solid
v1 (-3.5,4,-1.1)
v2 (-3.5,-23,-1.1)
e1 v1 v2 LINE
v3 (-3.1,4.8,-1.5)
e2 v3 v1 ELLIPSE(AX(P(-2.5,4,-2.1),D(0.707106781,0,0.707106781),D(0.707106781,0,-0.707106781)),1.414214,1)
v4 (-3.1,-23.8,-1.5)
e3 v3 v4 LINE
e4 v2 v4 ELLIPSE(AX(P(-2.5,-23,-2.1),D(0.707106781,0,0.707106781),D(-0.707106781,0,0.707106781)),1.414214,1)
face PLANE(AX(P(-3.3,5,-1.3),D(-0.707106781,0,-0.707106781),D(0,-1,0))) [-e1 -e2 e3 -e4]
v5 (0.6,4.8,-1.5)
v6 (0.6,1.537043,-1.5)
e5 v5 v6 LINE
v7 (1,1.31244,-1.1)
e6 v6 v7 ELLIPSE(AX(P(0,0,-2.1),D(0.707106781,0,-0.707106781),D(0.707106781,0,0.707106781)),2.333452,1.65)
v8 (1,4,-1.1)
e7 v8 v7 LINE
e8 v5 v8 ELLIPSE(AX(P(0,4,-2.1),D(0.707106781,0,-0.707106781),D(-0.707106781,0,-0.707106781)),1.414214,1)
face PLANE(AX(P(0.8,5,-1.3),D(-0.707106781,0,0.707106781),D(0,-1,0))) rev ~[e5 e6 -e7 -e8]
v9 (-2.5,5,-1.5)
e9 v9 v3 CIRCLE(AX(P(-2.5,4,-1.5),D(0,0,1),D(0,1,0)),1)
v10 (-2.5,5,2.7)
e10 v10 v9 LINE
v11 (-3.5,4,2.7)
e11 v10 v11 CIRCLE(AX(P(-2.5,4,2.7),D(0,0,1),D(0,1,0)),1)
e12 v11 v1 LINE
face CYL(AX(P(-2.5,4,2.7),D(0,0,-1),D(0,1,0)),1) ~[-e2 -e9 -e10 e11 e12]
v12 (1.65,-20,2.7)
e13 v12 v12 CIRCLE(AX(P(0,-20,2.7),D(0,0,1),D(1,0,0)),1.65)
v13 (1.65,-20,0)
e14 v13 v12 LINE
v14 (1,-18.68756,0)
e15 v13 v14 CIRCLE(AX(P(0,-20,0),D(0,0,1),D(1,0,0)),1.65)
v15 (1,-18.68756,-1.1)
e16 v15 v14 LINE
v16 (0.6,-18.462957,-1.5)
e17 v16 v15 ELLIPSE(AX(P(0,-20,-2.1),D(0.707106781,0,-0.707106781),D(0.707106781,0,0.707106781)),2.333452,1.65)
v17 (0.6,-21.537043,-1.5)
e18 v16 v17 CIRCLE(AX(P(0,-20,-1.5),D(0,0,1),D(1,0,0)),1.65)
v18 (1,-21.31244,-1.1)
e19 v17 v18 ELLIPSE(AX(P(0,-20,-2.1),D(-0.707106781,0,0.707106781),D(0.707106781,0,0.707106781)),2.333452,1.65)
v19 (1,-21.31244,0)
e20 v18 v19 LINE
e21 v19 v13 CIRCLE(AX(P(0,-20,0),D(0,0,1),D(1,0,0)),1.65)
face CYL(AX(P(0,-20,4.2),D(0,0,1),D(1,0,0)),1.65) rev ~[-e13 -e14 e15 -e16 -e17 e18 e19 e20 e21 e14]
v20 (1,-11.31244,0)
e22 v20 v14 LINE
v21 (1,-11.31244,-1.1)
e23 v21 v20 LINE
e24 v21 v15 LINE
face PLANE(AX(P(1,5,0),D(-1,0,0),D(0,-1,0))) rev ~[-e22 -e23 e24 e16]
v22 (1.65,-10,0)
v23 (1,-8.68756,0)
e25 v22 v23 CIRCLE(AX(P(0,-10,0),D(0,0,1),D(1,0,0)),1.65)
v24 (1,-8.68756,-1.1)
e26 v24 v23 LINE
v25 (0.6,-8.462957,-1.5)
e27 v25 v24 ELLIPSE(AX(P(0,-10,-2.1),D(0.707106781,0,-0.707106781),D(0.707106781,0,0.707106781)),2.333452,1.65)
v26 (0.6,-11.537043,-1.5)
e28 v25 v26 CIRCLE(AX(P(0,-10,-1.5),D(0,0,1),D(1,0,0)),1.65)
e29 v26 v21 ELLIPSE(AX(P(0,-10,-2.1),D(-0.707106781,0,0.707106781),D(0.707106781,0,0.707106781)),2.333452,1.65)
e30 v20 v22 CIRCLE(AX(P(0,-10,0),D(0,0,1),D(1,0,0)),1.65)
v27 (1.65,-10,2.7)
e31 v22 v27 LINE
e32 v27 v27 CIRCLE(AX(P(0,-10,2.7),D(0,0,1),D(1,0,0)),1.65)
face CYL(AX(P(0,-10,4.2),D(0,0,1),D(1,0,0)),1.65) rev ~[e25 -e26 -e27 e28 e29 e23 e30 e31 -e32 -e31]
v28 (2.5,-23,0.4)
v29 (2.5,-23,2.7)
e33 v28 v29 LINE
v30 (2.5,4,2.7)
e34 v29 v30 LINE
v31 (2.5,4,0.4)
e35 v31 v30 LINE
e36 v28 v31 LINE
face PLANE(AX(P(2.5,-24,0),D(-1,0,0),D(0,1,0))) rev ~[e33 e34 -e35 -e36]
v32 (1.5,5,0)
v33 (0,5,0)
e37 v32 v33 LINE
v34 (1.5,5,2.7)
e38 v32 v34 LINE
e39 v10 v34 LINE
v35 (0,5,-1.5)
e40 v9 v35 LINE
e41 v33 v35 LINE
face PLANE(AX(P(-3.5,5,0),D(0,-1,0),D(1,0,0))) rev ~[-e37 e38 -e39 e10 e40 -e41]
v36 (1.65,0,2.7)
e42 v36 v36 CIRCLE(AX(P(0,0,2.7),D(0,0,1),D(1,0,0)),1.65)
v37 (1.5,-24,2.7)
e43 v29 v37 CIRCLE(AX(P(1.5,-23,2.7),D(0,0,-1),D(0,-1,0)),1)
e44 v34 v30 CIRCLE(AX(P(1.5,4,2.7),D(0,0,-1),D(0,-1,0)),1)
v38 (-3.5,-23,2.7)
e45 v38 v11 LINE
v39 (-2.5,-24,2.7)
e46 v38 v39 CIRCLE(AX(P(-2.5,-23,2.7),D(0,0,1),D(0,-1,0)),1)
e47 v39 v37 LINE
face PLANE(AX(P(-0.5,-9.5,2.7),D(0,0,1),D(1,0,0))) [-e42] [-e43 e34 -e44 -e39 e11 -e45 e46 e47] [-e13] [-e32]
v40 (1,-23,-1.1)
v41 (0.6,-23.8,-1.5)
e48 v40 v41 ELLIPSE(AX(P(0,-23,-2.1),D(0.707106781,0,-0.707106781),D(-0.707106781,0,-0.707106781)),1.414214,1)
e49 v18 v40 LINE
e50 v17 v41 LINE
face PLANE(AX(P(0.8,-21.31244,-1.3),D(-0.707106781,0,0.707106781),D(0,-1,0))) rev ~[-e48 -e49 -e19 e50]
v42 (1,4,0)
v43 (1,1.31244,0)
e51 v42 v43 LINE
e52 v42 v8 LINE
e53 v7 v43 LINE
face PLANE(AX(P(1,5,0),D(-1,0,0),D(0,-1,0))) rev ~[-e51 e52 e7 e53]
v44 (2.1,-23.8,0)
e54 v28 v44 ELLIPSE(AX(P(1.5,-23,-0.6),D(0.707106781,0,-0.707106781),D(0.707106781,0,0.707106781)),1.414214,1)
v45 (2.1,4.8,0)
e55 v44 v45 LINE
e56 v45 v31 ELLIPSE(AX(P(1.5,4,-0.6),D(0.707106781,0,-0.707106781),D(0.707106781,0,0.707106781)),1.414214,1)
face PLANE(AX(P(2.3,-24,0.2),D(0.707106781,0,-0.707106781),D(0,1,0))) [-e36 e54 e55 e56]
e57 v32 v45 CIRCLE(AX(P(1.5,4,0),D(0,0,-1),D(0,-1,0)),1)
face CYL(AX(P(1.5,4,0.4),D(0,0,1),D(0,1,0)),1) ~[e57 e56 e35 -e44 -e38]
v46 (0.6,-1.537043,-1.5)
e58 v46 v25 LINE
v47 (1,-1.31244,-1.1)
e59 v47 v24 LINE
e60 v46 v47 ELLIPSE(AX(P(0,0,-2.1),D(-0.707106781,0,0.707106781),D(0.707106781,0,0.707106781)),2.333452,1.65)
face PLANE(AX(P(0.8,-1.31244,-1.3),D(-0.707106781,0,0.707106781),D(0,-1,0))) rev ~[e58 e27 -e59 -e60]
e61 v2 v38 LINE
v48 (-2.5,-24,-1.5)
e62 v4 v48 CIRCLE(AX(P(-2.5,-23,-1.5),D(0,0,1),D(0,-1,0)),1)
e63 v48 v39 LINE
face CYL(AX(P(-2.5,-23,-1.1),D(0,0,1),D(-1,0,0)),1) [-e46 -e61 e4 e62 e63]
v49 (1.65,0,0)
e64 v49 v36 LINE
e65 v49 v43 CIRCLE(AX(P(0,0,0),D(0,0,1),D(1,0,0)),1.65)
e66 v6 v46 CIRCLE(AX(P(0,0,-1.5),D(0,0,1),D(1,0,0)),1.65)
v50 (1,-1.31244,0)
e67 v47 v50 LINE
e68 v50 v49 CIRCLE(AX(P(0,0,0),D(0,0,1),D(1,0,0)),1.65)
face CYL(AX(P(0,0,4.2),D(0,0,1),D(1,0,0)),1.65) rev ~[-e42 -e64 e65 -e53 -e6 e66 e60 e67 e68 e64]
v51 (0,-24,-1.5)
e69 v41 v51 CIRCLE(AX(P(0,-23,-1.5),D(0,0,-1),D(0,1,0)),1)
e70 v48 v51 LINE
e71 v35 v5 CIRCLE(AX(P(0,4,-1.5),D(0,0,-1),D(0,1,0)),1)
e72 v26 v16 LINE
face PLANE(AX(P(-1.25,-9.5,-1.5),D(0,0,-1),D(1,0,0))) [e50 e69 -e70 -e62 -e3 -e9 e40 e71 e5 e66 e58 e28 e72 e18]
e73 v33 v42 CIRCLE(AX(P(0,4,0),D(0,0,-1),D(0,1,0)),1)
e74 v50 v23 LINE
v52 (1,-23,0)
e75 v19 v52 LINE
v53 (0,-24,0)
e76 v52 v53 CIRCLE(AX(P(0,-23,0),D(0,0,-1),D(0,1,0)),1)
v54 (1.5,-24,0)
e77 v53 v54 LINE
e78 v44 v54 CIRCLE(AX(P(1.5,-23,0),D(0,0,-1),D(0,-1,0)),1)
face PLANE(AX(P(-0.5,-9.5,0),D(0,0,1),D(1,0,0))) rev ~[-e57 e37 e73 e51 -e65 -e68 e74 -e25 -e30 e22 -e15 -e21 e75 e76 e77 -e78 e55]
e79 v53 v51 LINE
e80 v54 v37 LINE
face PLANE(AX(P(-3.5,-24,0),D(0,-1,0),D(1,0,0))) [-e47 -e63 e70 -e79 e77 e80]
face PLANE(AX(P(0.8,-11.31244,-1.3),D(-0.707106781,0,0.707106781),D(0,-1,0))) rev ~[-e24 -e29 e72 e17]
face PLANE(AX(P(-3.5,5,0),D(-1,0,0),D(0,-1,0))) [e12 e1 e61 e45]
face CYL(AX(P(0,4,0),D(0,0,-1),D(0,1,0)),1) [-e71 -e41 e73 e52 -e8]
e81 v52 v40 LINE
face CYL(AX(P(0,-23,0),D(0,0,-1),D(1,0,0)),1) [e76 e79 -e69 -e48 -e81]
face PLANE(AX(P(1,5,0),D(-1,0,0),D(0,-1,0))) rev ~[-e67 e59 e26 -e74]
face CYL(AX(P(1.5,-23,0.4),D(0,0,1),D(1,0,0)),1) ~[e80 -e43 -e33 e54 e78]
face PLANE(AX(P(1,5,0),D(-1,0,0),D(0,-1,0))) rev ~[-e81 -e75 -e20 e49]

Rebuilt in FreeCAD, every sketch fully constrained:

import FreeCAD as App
import Part
import Sketcher

V = App.Vector


def edges_at(feature, points):
    """Names of the edges that pass closest to the given points."""
    edges = feature.Shape.Edges
    near = lambda p: min(range(len(edges)), key=lambda i: edges[i].distToShape(Part.Vertex(*p))[0])
    return sorted({f"Edge{near(p) + 1}" for p in points})

doc = App.newDocument("Part")
body = doc.addObject("PartDesign::Body", "Body")

# Sketch on XY plane
sketch1 = doc.addObject("Sketcher::SketchObject", "Sketch")
body.addObject(sketch1)
sketch1.AttachmentSupport = (doc.XY_Plane, [""])
sketch1.MapMode = "FlatFace"
sketch1.addGeometry(Part.LineSegment(V(-3.5, 5, 0), V(-3.5, -24, 0)), False)
sketch1.addGeometry(Part.LineSegment(V(-3.5, -24, 0), V(2.5, -24, 0)), False)
sketch1.addGeometry(Part.LineSegment(V(2.5, -24, 0), V(2.5, 5, 0)), False)
sketch1.addGeometry(Part.LineSegment(V(2.5, 5, 0), V(-3.5, 5, 0)), False)
sketch1.addGeometry(Part.Circle(V(0, -20, 0), V(0, 0, 1), 1.6), False)
sketch1.addGeometry(Part.Circle(V(0, -10, 0), V(0, 0, 1), 1.6), False)
sketch1.addGeometry(Part.Circle(V(0, 0, 0), V(0, 0, 1), 1.6), False)
sketch1.addConstraint(Sketcher.Constraint("Coincident", 0, 2, 1, 1))
sketch1.addConstraint(Sketcher.Constraint("Coincident", 1, 2, 2, 1))
sketch1.addConstraint(Sketcher.Constraint("Coincident", 2, 2, 3, 1))
sketch1.addConstraint(Sketcher.Constraint("Coincident", 3, 2, 0, 1))
sketch1.addConstraint(Sketcher.Constraint("Vertical", 0))
sketch1.addConstraint(Sketcher.Constraint("Horizontal", 1))
sketch1.addConstraint(Sketcher.Constraint("Vertical", 2))
sketch1.addConstraint(Sketcher.Constraint("Horizontal", 3))
sketch1.addConstraint(Sketcher.Constraint("Coincident", 6, 3, -1, 1))
sketch1.addConstraint(Sketcher.Constraint("Equal", 4, 5))
sketch1.addConstraint(Sketcher.Constraint("Equal", 5, 6))
sketch1.addConstraint(Sketcher.Constraint("PointOnObject", 4, 3, -2))
sketch1.addConstraint(Sketcher.Constraint("PointOnObject", 5, 3, -2))
sketch1.addConstraint(Sketcher.Constraint("Diameter", 4, 3.3))
sketch1.addConstraint(Sketcher.Constraint("DistanceX", 1, 1, 1, 2, 6.0))
sketch1.addConstraint(Sketcher.Constraint("DistanceY", 0, 2, 0, 1, 29.0))
sketch1.addConstraint(Sketcher.Constraint("DistanceY", 4, 3, -1, 1, 20.0))
sketch1.addConstraint(Sketcher.Constraint("DistanceY", 5, 3, -1, 1, 10.0))
sketch1.addConstraint(Sketcher.Constraint("DistanceY", 0, 2, -1, 1, 24.0))
sketch1.addConstraint(Sketcher.Constraint("DistanceX", 0, 2, -1, 1, 3.5))
pad1 = doc.addObject("PartDesign::Pad", "Pad")
body.addObject(pad1)
pad1.Profile = sketch1
pad1.Length = 2.7

# Sketch on XY plane
sketch2 = doc.addObject("Sketcher::SketchObject", "Sketch001")
body.addObject(sketch2)
sketch2.AttachmentSupport = (doc.XY_Plane, [""])
sketch2.MapMode = "FlatFace"
sketch2.addGeometry(Part.LineSegment(V(-3.5, -24, 0), V(-3.5, 5, 0)), False)
sketch2.addGeometry(Part.LineSegment(V(-3.5, 5, 0), V(1, 5, 0)), False)
sketch2.addGeometry(Part.LineSegment(V(1, 5, 0), V(1, -24, 0)), False)
sketch2.addGeometry(Part.LineSegment(V(1, -24, 0), V(-3.5, -24, 0)), False)
sketch2.addConstraint(Sketcher.Constraint("Coincident", 0, 2, 1, 1))
sketch2.addConstraint(Sketcher.Constraint("Coincident", 1, 2, 2, 1))
sketch2.addConstraint(Sketcher.Constraint("Coincident", 2, 2, 3, 1))
sketch2.addConstraint(Sketcher.Constraint("Coincident", 3, 2, 0, 1))
sketch2.addConstraint(Sketcher.Constraint("Vertical", 0))
sketch2.addConstraint(Sketcher.Constraint("Horizontal", 1))
sketch2.addConstraint(Sketcher.Constraint("Vertical", 2))
sketch2.addConstraint(Sketcher.Constraint("Horizontal", 3))
sketch2.addConstraint(Sketcher.Constraint("DistanceY", 0, 1, 0, 2, 29.0))
sketch2.addConstraint(Sketcher.Constraint("DistanceX", 1, 1, 1, 2, 4.5))
sketch2.addConstraint(Sketcher.Constraint("DistanceY", -1, 1, 0, 2, 5.0))
sketch2.addConstraint(Sketcher.Constraint("DistanceX", -1, 1, 1, 2, 1.0))
pad2 = doc.addObject("PartDesign::Pad", "Pad001")
body.addObject(pad2)
pad2.Profile = sketch2
pad2.Length = 1.5
pad2.Reversed = True

# Sketch on XY plane
sketch3 = doc.addObject("Sketcher::SketchObject", "Sketch002")
body.addObject(sketch3)
sketch3.AttachmentSupport = (doc.XY_Plane, [""])
sketch3.MapMode = "FlatFace"
sketch3.AttachmentOffset = App.Placement(V(0, 0, 4.2), App.Rotation())
sketch3.addGeometry(Part.Circle(V(0, 0, 0), V(0, 0, 1), 1.6), False)
sketch3.addGeometry(Part.Circle(V(0, -10, 0), V(0, 0, 1), 1.6), False)
sketch3.addGeometry(Part.Circle(V(0, -20, 0), V(0, 0, 1), 1.6), False)
sketch3.addConstraint(Sketcher.Constraint("Coincident", 0, 3, -1, 1))
sketch3.addConstraint(Sketcher.Constraint("Equal", 0, 1))
sketch3.addConstraint(Sketcher.Constraint("Equal", 1, 2))
sketch3.addConstraint(Sketcher.Constraint("PointOnObject", 1, 3, -2))
sketch3.addConstraint(Sketcher.Constraint("PointOnObject", 2, 3, -2))
sketch3.addConstraint(Sketcher.Constraint("Diameter", 0, 3.3))
sketch3.addConstraint(Sketcher.Constraint("DistanceY", 1, 3, -1, 1, 10.0))
sketch3.addConstraint(Sketcher.Constraint("DistanceY", 2, 3, -1, 1, 20.0))
pocket1 = doc.addObject("PartDesign::Pocket", "Pocket")
body.addObject(pocket1)
pocket1.Profile = sketch3
pocket1.Type = "ThroughAll"
doc.recompute()

chamfer = doc.addObject("PartDesign::Chamfer", "Chamfer")
body.addObject(chamfer)
chamfer.Base = (pocket1, edges_at(pocket1, [
    (2.5, -9.5, 0),
    (1, 3.156, -1.5),
    (1, -5, -1.5),
    (1, -15, -1.5),
    (1, -22.656, -1.5),
]))
chamfer.Size = 0.4
doc.recompute()

chamfer2 = doc.addObject("PartDesign::Chamfer", "Chamfer001")
body.addObject(chamfer2)
chamfer2.Base = (chamfer, edges_at(chamfer, [(-3.5, -9.5, -1.5)]))
chamfer2.Size = 0.4
doc.recompute()

fillet = doc.addObject("PartDesign::Fillet", "Fillet")
body.addObject(fillet)
fillet.Base = (chamfer2, edges_at(chamfer2, [
    (2.5, 5, 1.55),
    (1, 5, -0.55),
    (-3.5, 5, 0.8),
    (-3.5, 5, 0.8),
]))
fillet.Radius = 1
doc.recompute()

fillet2 = doc.addObject("PartDesign::Fillet", "Fillet001")
body.addObject(fillet2)
fillet2.Base = (fillet, edges_at(fillet, [
    (2.5, -24, 1.55),
    (1, -24, -0.55),
    (-3.5, -24, 0.8),
    (-3.5, -24, 0.8),
]))
fillet2.Radius = 1

doc.recompute()
